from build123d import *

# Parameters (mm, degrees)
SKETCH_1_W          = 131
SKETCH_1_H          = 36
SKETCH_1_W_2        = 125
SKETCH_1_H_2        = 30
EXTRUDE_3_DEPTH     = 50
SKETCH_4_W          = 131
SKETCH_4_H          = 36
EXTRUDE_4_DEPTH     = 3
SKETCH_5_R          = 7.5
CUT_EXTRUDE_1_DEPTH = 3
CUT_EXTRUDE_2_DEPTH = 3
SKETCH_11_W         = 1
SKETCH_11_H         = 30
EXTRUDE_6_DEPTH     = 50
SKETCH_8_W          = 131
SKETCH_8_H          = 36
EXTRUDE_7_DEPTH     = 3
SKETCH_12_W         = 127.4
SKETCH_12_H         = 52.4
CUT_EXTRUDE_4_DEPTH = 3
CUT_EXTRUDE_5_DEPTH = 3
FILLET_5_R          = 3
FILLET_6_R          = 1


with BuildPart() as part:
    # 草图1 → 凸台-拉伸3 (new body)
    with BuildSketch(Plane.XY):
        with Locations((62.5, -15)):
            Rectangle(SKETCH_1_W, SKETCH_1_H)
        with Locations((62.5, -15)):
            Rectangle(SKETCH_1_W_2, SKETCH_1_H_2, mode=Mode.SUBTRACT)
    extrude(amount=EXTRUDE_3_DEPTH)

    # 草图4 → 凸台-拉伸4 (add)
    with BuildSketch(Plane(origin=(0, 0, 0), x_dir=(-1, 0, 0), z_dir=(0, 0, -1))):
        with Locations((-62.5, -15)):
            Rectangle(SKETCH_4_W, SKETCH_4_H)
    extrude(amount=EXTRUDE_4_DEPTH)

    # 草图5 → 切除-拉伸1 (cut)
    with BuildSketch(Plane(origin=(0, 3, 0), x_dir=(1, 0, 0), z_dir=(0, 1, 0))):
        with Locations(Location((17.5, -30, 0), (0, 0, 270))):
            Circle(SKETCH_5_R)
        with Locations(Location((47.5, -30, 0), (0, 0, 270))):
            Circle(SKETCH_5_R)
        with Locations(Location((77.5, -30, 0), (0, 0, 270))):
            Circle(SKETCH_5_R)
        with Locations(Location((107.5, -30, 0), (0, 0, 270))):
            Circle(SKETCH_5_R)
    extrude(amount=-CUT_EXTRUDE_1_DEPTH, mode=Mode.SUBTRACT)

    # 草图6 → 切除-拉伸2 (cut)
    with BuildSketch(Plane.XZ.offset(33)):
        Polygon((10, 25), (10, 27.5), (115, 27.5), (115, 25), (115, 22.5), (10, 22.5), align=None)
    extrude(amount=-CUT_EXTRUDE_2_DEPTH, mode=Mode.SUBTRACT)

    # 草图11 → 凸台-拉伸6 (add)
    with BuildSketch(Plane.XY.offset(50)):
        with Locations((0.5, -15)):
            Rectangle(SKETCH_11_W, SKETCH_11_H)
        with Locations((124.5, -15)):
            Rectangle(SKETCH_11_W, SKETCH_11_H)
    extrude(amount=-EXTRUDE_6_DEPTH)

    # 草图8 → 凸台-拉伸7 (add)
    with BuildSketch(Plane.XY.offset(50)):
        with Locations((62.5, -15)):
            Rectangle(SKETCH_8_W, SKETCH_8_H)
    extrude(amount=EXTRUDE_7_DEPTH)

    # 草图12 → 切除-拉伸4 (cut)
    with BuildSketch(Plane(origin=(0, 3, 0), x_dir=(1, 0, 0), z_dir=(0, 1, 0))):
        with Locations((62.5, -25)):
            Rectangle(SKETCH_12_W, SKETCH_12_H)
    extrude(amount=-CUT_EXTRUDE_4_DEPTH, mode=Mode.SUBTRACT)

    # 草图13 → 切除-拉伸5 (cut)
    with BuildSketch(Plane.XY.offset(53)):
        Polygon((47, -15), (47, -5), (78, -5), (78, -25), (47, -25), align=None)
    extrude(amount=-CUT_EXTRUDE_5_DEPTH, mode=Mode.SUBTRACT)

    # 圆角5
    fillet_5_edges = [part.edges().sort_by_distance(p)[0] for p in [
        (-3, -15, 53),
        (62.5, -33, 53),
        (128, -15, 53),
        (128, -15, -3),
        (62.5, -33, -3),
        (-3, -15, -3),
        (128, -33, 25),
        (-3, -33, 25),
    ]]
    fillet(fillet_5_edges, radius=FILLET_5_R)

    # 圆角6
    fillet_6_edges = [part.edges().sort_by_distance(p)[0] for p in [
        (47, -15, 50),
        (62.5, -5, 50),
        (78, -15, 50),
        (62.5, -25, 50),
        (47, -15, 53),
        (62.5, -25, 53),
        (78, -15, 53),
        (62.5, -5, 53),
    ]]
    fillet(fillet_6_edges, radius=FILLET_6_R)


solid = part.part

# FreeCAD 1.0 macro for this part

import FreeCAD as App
import Part
import Sketcher
Q = App.Units.Quantity


def edges_at(feature, points):
    """Names of the edges that pass closest to the given points."""
    edges = feature.Shape.Edges
    near = lambda p: min(range(len(edges)), key=lambda i: edges[i].distToShape(Part.Vertex(*p))[0])
    return sorted({f"Edge{near(p) + 1}" for p in points})

doc = App.newDocument("Part")
body = doc.addObject("PartDesign::Body", "Body")

sketch1 = body.newObject("Sketcher::SketchObject", "Sketch")
sketch1.AttachmentSupport = (doc.getObject("XY_Plane"), [""])
sketch1.MapMode = "FlatFace"
sketch1.addGeometry(Part.LineSegment(App.Vector(-3, 3, 0), App.Vector(-3, -33, 0)), False)
sketch1.addGeometry(Part.LineSegment(App.Vector(-3, -33, 0), App.Vector(128, -33, 0)), False)
sketch1.addGeometry(Part.LineSegment(App.Vector(128, -33, 0), App.Vector(128, 3, 0)), False)
sketch1.addGeometry(Part.LineSegment(App.Vector(128, 3, 0), App.Vector(-3, 3, 0)), False)
sketch1.addGeometry(Part.LineSegment(App.Vector(125, -30, 0), App.Vector(0, -30, 0)), False)
sketch1.addGeometry(Part.LineSegment(App.Vector(0, -30, 0), App.Vector(0, 0, 0)), False)
sketch1.addGeometry(Part.LineSegment(App.Vector(0, 0, 0), App.Vector(125, 0, 0)), False)
sketch1.addGeometry(Part.LineSegment(App.Vector(125, 0, 0), App.Vector(125, -30, 0)), False)
sketch1.addConstraint(Sketcher.Constraint("Coincident", 0, 2, 1, 1))
sketch1.addConstraint(Sketcher.Constraint("Coincident", 1, 2, 2, 1))
sketch1.addConstraint(Sketcher.Constraint("Coincident", 2, 2, 3, 1))
sketch1.addConstraint(Sketcher.Constraint("Coincident", 3, 2, 0, 1))
sketch1.addConstraint(Sketcher.Constraint("Coincident", 4, 2, 5, 1))
sketch1.addConstraint(Sketcher.Constraint("Coincident", 5, 2, 6, 1))
sketch1.addConstraint(Sketcher.Constraint("Coincident", 6, 2, 7, 1))
sketch1.addConstraint(Sketcher.Constraint("Coincident", 7, 2, 4, 1))
sketch1.addConstraint(Sketcher.Constraint("Vertical", 0))
sketch1.addConstraint(Sketcher.Constraint("Horizontal", 1))
sketch1.addConstraint(Sketcher.Constraint("Vertical", 2))
sketch1.addConstraint(Sketcher.Constraint("Horizontal", 3))
sketch1.addConstraint(Sketcher.Constraint("Horizontal", 4))
sketch1.addConstraint(Sketcher.Constraint("Vertical", 5))
sketch1.addConstraint(Sketcher.Constraint("Horizontal", 6))
sketch1.addConstraint(Sketcher.Constraint("Vertical", 7))
sketch1.addConstraint(Sketcher.Constraint("Coincident", 5, 2, -1, 1))
sketch1.addConstraint(Sketcher.Constraint("DistanceX", 1, 1, 1, 2, Q("131 mm")))
sketch1.addConstraint(Sketcher.Constraint("DistanceX", 4, 2, 4, 1, Q("125 mm")))
sketch1.addConstraint(Sketcher.Constraint("DistanceY", 0, 2, 0, 1, Q("36 mm")))
sketch1.addConstraint(Sketcher.Constraint("DistanceY", 5, 1, 5, 2, Q("30 mm")))
sketch1.addConstraint(Sketcher.Constraint("DistanceX", 0, 2, -1, 1, Q("3 mm")))
sketch1.addConstraint(Sketcher.Constraint("DistanceY", 0, 2, -1, 1, Q("33 mm")))
pad1 = body.newObject("PartDesign::Pad", "Pad")
pad1.Profile = sketch1
pad1.Length = 50

sketch2 = body.newObject("Sketcher::SketchObject", "Sketch001")
sketch2.AttachmentSupport = (doc.getObject("XY_Plane"), [""])
sketch2.MapMode = "FlatFace"
sketch2.addGeometry(Part.LineSegment(App.Vector(128, 3, 0), App.Vector(128, -33, 0)), False)
sketch2.addGeometry(Part.LineSegment(App.Vector(128, -33, 0), App.Vector(-3, -33, 0)), False)
sketch2.addGeometry(Part.LineSegment(App.Vector(-3, -33, 0), App.Vector(-3, 3, 0)), False)
sketch2.addGeometry(Part.LineSegment(App.Vector(-3, 3, 0), App.Vector(128, 3, 0)), False)
sketch2.addConstraint(Sketcher.Constraint("Coincident", 0, 2, 1, 1))
sketch2.addConstraint(Sketcher.Constraint("Coincident", 1, 2, 2, 1))
sketch2.addConstraint(Sketcher.Constraint("Coincident", 2, 2, 3, 1))
sketch2.addConstraint(Sketcher.Constraint("Coincident", 3, 2, 0, 1))
sketch2.addConstraint(Sketcher.Constraint("Vertical", 0))
sketch2.addConstraint(Sketcher.Constraint("Horizontal", 1))
sketch2.addConstraint(Sketcher.Constraint("Vertical", 2))
sketch2.addConstraint(Sketcher.Constraint("Horizontal", 3))
sketch2.addConstraint(Sketcher.Constraint("DistanceX", 1, 2, 1, 1, Q("131 mm")))
sketch2.addConstraint(Sketcher.Constraint("DistanceY", 0, 2, 0, 1, Q("36 mm")))
sketch2.addConstraint(Sketcher.Constraint("DistanceX", -1, 1, 0, 2, Q("128 mm")))
sketch2.addConstraint(Sketcher.Constraint("DistanceY", 0, 2, -1, 1, Q("33 mm")))
pad2 = body.newObject("PartDesign::Pad", "Pad001")
pad2.Profile = sketch2
pad2.Length = 3
pad2.Reversed = True

sketch3 = body.newObject("Sketcher::SketchObject", "Sketch002")
sketch3.AttachmentSupport = (doc.getObject("XZ_Plane"), [""])
sketch3.MapMode = "FlatFace"
sketch3.AttachmentOffset = App.Placement(App.Vector(0, 0, -3), App.Rotation())
sketch3.addGeometry(Part.Circle(App.Vector(18, 30, 0), App.Vector(0, 0, 1), 8), False)
sketch3.addGeometry(Part.Circle(App.Vector(48, 30, 0), App.Vector(0, 0, 1), 8), False)
sketch3.addGeometry(Part.Circle(App.Vector(78, 30, 0), App.Vector(0, 0, 1), 8), False)
sketch3.addGeometry(Part.Circle(App.Vector(108, 30, 0), App.Vector(0, 0, 1), 8), False)
sketch3.addConstraint(Sketcher.Constraint("Equal", 0, 1))
sketch3.addConstraint(Sketcher.Constraint("Equal", 1, 2))
sketch3.addConstraint(Sketcher.Constraint("Equal", 2, 3))
sketch3.addConstraint(Sketcher.Constraint("Horizontal", 0, 3, 1, 3))
sketch3.addConstraint(Sketcher.Constraint("Horizontal", 1, 3, 2, 3))
sketch3.addConstraint(Sketcher.Constraint("Horizontal", 2, 3, 3, 3))
sketch3.addConstraint(Sketcher.Constraint("Diameter", 0, Q("15 mm")))
sketch3.addConstraint(Sketcher.Constraint("DistanceY", -1, 1, 0, 3, Q("30 mm")))
sketch3.addConstraint(Sketcher.Constraint("DistanceX", 0, 3, 1, 3, Q("30 mm")))
sketch3.addConstraint(Sketcher.Constraint("DistanceX", 1, 3, 2, 3, Q("30 mm")))
sketch3.addConstraint(Sketcher.Constraint("DistanceX", 2, 3, 3, 3, Q("30 mm")))
sketch3.addConstraint(Sketcher.Constraint("DistanceX", -1, 1, 0, 3, Q("17.5 mm")))
pocket1 = body.newObject("PartDesign::Pocket", "Pocket")
pocket1.Profile = sketch3
pocket1.Length = 3
pocket1.Reversed = True

sketch4 = body.newObject("Sketcher::SketchObject", "Sketch003")
sketch4.AttachmentSupport = (doc.getObject("XZ_Plane"), [""])
sketch4.MapMode = "FlatFace"
sketch4.AttachmentOffset = App.Placement(App.Vector(0, 0, 33), App.Rotation())
sketch4.addGeometry(Part.LineSegment(App.Vector(10, 28, 0), App.Vector(10, 22, 0)), False)
sketch4.addGeometry(Part.LineSegment(App.Vector(10, 22, 0), App.Vector(115, 22, 0)), False)
sketch4.addGeometry(Part.LineSegment(App.Vector(115, 22, 0), App.Vector(115, 28, 0)), False)
sketch4.addGeometry(Part.LineSegment(App.Vector(115, 28, 0), App.Vector(10, 28, 0)), False)
sketch4.addConstraint(Sketcher.Constraint("Coincident", 0, 2, 1, 1))
sketch4.addConstraint(Sketcher.Constraint("Coincident", 1, 2, 2, 1))
sketch4.addConstraint(Sketcher.Constraint("Coincident", 2, 2, 3, 1))
sketch4.addConstraint(Sketcher.Constraint("Coincident", 3, 2, 0, 1))
sketch4.addConstraint(Sketcher.Constraint("Vertical", 0))
sketch4.addConstraint(Sketcher.Constraint("Horizontal", 1))
sketch4.addConstraint(Sketcher.Constraint("Vertical", 2))
sketch4.addConstraint(Sketcher.Constraint("Horizontal", 3))
sketch4.addConstraint(Sketcher.Constraint("DistanceX", 1, 1, 1, 2, Q("105 mm")))
sketch4.addConstraint(Sketcher.Constraint("DistanceY", 0, 2, 0, 1, Q("5 mm")))
sketch4.addConstraint(Sketcher.Constraint("DistanceX", -1, 1, 0, 2, Q("10 mm")))
sketch4.addConstraint(Sketcher.Constraint("DistanceY", -1, 1, 0, 2, Q("22.5 mm")))
pocket2 = body.newObject("PartDesign::Pocket", "Pocket001")
pocket2.Profile = sketch4
pocket2.Length = 3

sketch5 = body.newObject("Sketcher::SketchObject", "Sketch004")
sketch5.AttachmentSupport = (doc.getObject("XY_Plane"), [""])
sketch5.MapMode = "FlatFace"
sketch5.AttachmentOffset = App.Placement(App.Vector(0, 0, 50), App.Rotation())
sketch5.addGeometry(Part.LineSegment(App.Vector(0, 0, 0), App.Vector(0, -30, 0)), False)
sketch5.addGeometry(Part.LineSegment(App.Vector(0, -30, 0), App.Vector(1, -30, 0)), False)
sketch5.addGeometry(Part.LineSegment(App.Vector(1, -30, 0), App.Vector(1, 0, 0)), False)
sketch5.addGeometry(Part.LineSegment(App.Vector(1, 0, 0), App.Vector(0, 0, 0)), False)
sketch5.addGeometry(Part.LineSegment(App.Vector(124, 0, 0), App.Vector(124, -30, 0)), False)
sketch5.addGeometry(Part.LineSegment(App.Vector(124, -30, 0), App.Vector(125, -30, 0)), False)
sketch5.addGeometry(Part.LineSegment(App.Vector(125, -30, 0), App.Vector(125, 0, 0)), False)
sketch5.addGeometry(Part.LineSegment(App.Vector(125, 0, 0), App.Vector(124, 0, 0)), False)
sketch5.addConstraint(Sketcher.Constraint("Coincident", 0, 2, 1, 1))
sketch5.addConstraint(Sketcher.Constraint("Coincident", 1, 2, 2, 1))
sketch5.addConstraint(Sketcher.Constraint("Coincident", 2, 2, 3, 1))
sketch5.addConstraint(Sketcher.Constraint("Coincident", 3, 2, 0, 1))
sketch5.addConstraint(Sketcher.Constraint("Coincident", 4, 2, 5, 1))
sketch5.addConstraint(Sketcher.Constraint("Coincident", 5, 2, 6, 1))
sketch5.addConstraint(Sketcher.Constraint("Coincident", 6, 2, 7, 1))
sketch5.addConstraint(Sketcher.Constraint("Coincident", 7, 2, 4, 1))
sketch5.addConstraint(Sketcher.Constraint("Vertical", 0))
sketch5.addConstraint(Sketcher.Constraint("Horizontal", 1))
sketch5.addConstraint(Sketcher.Constraint("Vertical", 2))
sketch5.addConstraint(Sketcher.Constraint("Horizontal", 3))
sketch5.addConstraint(Sketcher.Constraint("Vertical", 4))
sketch5.addConstraint(Sketcher.Constraint("Horizontal", 5))
sketch5.addConstraint(Sketcher.Constraint("Vertical", 6))
sketch5.addConstraint(Sketcher.Constraint("Horizontal", 7))
sketch5.addConstraint(Sketcher.Constraint("Coincident", 3, 2, -1, 1))
sketch5.addConstraint(Sketcher.Constraint("PointOnObject", 6, 2, -1))
sketch5.addConstraint(Sketcher.Constraint("Horizontal", 1, 2, 4, 2))
sketch5.addConstraint(Sketcher.Constraint("Equal", 3, 5))
sketch5.addConstraint(Sketcher.Constraint("DistanceX", 1, 1, 1, 2, Q("1 mm")))
sketch5.addConstraint(Sketcher.Constraint("DistanceY", 0, 2, 0, 1, Q("30 mm")))
sketch5.addConstraint(Sketcher.Constraint("DistanceX", -1, 1, 4, 2, Q("124 mm")))
pad3 = body.newObject("PartDesign::Pad", "Pad002")
pad3.Profile = sketch5
pad3.Length = 50
pad3.Reversed = True

sketch6 = body.newObject("Sketcher::SketchObject", "Sketch005")
sketch6.AttachmentSupport = (doc.getObject("XY_Plane"), [""])
sketch6.MapMode = "FlatFace"
sketch6.AttachmentOffset = App.Placement(App.Vector(0, 0, 50), App.Rotation())
sketch6.addGeometry(Part.LineSegment(App.Vector(-3, 3, 0), App.Vector(-3, -33, 0)), False)
sketch6.addGeometry(Part.LineSegment(App.Vector(-3, -33, 0), App.Vector(128, -33, 0)), False)
sketch6.addGeometry(Part.LineSegment(App.Vector(128, -33, 0), App.Vector(128, 3, 0)), False)
sketch6.addGeometry(Part.LineSegment(App.Vector(128, 3, 0), App.Vector(-3, 3, 0)), False)
sketch6.addConstraint(Sketcher.Constraint("Coincident", 0, 2, 1, 1))
sketch6.addConstraint(Sketcher.Constraint("Coincident", 1, 2, 2, 1))
sketch6.addConstraint(Sketcher.Constraint("Coincident", 2, 2, 3, 1))
sketch6.addConstraint(Sketcher.Constraint("Coincident", 3, 2, 0, 1))
sketch6.addConstraint(Sketcher.Constraint("Vertical", 0))
sketch6.addConstraint(Sketcher.Constraint("Horizontal", 1))
sketch6.addConstraint(Sketcher.Constraint("Vertical", 2))
sketch6.addConstraint(Sketcher.Constraint("Horizontal", 3))
sketch6.addConstraint(Sketcher.Constraint("DistanceX", 1, 1, 1, 2, Q("131 mm")))
sketch6.addConstraint(Sketcher.Constraint("DistanceY", 0, 2, 0, 1, Q("36 mm")))
sketch6.addConstraint(Sketcher.Constraint("DistanceX", 0, 2, -1, 1, Q("3 mm")))
sketch6.addConstraint(Sketcher.Constraint("DistanceY", 0, 2, -1, 1, Q("33 mm")))
pad4 = body.newObject("PartDesign::Pad", "Pad003")
pad4.Profile = sketch6
pad4.Length = 3

sketch7 = body.newObject("Sketcher::SketchObject", "Sketch006")
sketch7.AttachmentSupport = (doc.getObject("XZ_Plane"), [""])
sketch7.MapMode = "FlatFace"
sketch7.AttachmentOffset = App.Placement(App.Vector(0, 0, -3), App.Rotation())
sketch7.addGeometry(Part.LineSegment(App.Vector(-1, -1, 0), App.Vector(-1, 51, 0)), False)
sketch7.addGeometry(Part.LineSegment(App.Vector(-1, 51, 0), App.Vector(126, 51, 0)), False)
sketch7.addGeometry(Part.LineSegment(App.Vector(126, 51, 0), App.Vector(126, -1, 0)), False)
sketch7.addGeometry(Part.LineSegment(App.Vector(126, -1, 0), App.Vector(-1, -1, 0)), False)
sketch7.addConstraint(Sketcher.Constraint("Coincident", 0, 2, 1, 1))
sketch7.addConstraint(Sketcher.Constraint("Coincident", 1, 2, 2, 1))
sketch7.addConstraint(Sketcher.Constraint("Coincident", 2, 2, 3, 1))
sketch7.addConstraint(Sketcher.Constraint("Coincident", 3, 2, 0, 1))
sketch7.addConstraint(Sketcher.Constraint("Vertical", 0))
sketch7.addConstraint(Sketcher.Constraint("Horizontal", 1))
sketch7.addConstraint(Sketcher.Constraint("Vertical", 2))
sketch7.addConstraint(Sketcher.Constraint("Horizontal", 3))
sketch7.addConstraint(Sketcher.Constraint("DistanceX", 1, 1, 1, 2, Q("127.4 mm")))
sketch7.addConstraint(Sketcher.Constraint("DistanceY", 0, 1, 0, 2, Q("52.4 mm")))
sketch7.addConstraint(Sketcher.Constraint("DistanceX", 0, 2, -1, 1, Q("1.2 mm")))
sketch7.addConstraint(Sketcher.Constraint("DistanceY", -1, 1, 0, 2, Q("51.2 mm")))
pocket3 = body.newObject("PartDesign::Pocket", "Pocket002")
pocket3.Profile = sketch7
pocket3.Length = 3
pocket3.Reversed = True

sketch8 = body.newObject("Sketcher::SketchObject", "Sketch007")
sketch8.AttachmentSupport = (doc.getObject("XY_Plane"), [""])
sketch8.MapMode = "FlatFace"
sketch8.AttachmentOffset = App.Placement(App.Vector(0, 0, 53), App.Rotation())
sketch8.addGeometry(Part.LineSegment(App.Vector(47, -5, 0), App.Vector(47, -25, 0)), False)
sketch8.addGeometry(Part.LineSegment(App.Vector(47, -25, 0), App.Vector(78, -25, 0)), False)
sketch8.addGeometry(Part.LineSegment(App.Vector(78, -25, 0), App.Vector(78, -5, 0)), False)
sketch8.addGeometry(Part.LineSegment(App.Vector(78, -5, 0), App.Vector(47, -5, 0)), False)
sketch8.addConstraint(Sketcher.Constraint("Coincident", 0, 2, 1, 1))
sketch8.addConstraint(Sketcher.Constraint("Coincident", 1, 2, 2, 1))
sketch8.addConstraint(Sketcher.Constraint("Coincident", 2, 2, 3, 1))
sketch8.addConstraint(Sketcher.Constraint("Coincident", 3, 2, 0, 1))
sketch8.addConstraint(Sketcher.Constraint("Vertical", 0))
sketch8.addConstraint(Sketcher.Constraint("Horizontal", 1))
sketch8.addConstraint(Sketcher.Constraint("Vertical", 2))
sketch8.addConstraint(Sketcher.Constraint("Horizontal", 3))
sketch8.addConstraint(Sketcher.Constraint("DistanceX", 1, 1, 1, 2, Q("31 mm")))
sketch8.addConstraint(Sketcher.Constraint("DistanceY", 0, 2, 0, 1, Q("20 mm")))
sketch8.addConstraint(Sketcher.Constraint("DistanceX", -1, 1, 0, 2, Q("47 mm")))
sketch8.addConstraint(Sketcher.Constraint("DistanceY", 0, 2, -1, 1, Q("25 mm")))
pocket4 = body.newObject("PartDesign::Pocket", "Pocket003")
pocket4.Profile = sketch8
pocket4.Length = 3
doc.recompute()

fillet = body.newObject("PartDesign::Fillet", "Fillet")
fillet.Base = (pocket4, edges_at(pocket4, [
    (-3, -15, 53),
    (62.5, -33, 53),
    (128, -15, 53),
    (128, -15, -3),
    (62.5, -33, -3),
    (-3, -15, -3),
    (128, -33, 25),
    (-3, -33, 25),
]))
fillet.Radius = 3
doc.recompute()

fillet2 = body.newObject("PartDesign::Fillet", "Fillet001")
fillet2.Base = (fillet, edges_at(fillet, [
    (47, -15, 50),
    (62.5, -5, 50),
    (78, -15, 50),
    (62.5, -25, 50),
    (47, -15, 53),
    (62.5, -25, 53),
    (78, -15, 53),
    (62.5, -5, 53),
]))
fillet2.Radius = 1

doc.recompute()
